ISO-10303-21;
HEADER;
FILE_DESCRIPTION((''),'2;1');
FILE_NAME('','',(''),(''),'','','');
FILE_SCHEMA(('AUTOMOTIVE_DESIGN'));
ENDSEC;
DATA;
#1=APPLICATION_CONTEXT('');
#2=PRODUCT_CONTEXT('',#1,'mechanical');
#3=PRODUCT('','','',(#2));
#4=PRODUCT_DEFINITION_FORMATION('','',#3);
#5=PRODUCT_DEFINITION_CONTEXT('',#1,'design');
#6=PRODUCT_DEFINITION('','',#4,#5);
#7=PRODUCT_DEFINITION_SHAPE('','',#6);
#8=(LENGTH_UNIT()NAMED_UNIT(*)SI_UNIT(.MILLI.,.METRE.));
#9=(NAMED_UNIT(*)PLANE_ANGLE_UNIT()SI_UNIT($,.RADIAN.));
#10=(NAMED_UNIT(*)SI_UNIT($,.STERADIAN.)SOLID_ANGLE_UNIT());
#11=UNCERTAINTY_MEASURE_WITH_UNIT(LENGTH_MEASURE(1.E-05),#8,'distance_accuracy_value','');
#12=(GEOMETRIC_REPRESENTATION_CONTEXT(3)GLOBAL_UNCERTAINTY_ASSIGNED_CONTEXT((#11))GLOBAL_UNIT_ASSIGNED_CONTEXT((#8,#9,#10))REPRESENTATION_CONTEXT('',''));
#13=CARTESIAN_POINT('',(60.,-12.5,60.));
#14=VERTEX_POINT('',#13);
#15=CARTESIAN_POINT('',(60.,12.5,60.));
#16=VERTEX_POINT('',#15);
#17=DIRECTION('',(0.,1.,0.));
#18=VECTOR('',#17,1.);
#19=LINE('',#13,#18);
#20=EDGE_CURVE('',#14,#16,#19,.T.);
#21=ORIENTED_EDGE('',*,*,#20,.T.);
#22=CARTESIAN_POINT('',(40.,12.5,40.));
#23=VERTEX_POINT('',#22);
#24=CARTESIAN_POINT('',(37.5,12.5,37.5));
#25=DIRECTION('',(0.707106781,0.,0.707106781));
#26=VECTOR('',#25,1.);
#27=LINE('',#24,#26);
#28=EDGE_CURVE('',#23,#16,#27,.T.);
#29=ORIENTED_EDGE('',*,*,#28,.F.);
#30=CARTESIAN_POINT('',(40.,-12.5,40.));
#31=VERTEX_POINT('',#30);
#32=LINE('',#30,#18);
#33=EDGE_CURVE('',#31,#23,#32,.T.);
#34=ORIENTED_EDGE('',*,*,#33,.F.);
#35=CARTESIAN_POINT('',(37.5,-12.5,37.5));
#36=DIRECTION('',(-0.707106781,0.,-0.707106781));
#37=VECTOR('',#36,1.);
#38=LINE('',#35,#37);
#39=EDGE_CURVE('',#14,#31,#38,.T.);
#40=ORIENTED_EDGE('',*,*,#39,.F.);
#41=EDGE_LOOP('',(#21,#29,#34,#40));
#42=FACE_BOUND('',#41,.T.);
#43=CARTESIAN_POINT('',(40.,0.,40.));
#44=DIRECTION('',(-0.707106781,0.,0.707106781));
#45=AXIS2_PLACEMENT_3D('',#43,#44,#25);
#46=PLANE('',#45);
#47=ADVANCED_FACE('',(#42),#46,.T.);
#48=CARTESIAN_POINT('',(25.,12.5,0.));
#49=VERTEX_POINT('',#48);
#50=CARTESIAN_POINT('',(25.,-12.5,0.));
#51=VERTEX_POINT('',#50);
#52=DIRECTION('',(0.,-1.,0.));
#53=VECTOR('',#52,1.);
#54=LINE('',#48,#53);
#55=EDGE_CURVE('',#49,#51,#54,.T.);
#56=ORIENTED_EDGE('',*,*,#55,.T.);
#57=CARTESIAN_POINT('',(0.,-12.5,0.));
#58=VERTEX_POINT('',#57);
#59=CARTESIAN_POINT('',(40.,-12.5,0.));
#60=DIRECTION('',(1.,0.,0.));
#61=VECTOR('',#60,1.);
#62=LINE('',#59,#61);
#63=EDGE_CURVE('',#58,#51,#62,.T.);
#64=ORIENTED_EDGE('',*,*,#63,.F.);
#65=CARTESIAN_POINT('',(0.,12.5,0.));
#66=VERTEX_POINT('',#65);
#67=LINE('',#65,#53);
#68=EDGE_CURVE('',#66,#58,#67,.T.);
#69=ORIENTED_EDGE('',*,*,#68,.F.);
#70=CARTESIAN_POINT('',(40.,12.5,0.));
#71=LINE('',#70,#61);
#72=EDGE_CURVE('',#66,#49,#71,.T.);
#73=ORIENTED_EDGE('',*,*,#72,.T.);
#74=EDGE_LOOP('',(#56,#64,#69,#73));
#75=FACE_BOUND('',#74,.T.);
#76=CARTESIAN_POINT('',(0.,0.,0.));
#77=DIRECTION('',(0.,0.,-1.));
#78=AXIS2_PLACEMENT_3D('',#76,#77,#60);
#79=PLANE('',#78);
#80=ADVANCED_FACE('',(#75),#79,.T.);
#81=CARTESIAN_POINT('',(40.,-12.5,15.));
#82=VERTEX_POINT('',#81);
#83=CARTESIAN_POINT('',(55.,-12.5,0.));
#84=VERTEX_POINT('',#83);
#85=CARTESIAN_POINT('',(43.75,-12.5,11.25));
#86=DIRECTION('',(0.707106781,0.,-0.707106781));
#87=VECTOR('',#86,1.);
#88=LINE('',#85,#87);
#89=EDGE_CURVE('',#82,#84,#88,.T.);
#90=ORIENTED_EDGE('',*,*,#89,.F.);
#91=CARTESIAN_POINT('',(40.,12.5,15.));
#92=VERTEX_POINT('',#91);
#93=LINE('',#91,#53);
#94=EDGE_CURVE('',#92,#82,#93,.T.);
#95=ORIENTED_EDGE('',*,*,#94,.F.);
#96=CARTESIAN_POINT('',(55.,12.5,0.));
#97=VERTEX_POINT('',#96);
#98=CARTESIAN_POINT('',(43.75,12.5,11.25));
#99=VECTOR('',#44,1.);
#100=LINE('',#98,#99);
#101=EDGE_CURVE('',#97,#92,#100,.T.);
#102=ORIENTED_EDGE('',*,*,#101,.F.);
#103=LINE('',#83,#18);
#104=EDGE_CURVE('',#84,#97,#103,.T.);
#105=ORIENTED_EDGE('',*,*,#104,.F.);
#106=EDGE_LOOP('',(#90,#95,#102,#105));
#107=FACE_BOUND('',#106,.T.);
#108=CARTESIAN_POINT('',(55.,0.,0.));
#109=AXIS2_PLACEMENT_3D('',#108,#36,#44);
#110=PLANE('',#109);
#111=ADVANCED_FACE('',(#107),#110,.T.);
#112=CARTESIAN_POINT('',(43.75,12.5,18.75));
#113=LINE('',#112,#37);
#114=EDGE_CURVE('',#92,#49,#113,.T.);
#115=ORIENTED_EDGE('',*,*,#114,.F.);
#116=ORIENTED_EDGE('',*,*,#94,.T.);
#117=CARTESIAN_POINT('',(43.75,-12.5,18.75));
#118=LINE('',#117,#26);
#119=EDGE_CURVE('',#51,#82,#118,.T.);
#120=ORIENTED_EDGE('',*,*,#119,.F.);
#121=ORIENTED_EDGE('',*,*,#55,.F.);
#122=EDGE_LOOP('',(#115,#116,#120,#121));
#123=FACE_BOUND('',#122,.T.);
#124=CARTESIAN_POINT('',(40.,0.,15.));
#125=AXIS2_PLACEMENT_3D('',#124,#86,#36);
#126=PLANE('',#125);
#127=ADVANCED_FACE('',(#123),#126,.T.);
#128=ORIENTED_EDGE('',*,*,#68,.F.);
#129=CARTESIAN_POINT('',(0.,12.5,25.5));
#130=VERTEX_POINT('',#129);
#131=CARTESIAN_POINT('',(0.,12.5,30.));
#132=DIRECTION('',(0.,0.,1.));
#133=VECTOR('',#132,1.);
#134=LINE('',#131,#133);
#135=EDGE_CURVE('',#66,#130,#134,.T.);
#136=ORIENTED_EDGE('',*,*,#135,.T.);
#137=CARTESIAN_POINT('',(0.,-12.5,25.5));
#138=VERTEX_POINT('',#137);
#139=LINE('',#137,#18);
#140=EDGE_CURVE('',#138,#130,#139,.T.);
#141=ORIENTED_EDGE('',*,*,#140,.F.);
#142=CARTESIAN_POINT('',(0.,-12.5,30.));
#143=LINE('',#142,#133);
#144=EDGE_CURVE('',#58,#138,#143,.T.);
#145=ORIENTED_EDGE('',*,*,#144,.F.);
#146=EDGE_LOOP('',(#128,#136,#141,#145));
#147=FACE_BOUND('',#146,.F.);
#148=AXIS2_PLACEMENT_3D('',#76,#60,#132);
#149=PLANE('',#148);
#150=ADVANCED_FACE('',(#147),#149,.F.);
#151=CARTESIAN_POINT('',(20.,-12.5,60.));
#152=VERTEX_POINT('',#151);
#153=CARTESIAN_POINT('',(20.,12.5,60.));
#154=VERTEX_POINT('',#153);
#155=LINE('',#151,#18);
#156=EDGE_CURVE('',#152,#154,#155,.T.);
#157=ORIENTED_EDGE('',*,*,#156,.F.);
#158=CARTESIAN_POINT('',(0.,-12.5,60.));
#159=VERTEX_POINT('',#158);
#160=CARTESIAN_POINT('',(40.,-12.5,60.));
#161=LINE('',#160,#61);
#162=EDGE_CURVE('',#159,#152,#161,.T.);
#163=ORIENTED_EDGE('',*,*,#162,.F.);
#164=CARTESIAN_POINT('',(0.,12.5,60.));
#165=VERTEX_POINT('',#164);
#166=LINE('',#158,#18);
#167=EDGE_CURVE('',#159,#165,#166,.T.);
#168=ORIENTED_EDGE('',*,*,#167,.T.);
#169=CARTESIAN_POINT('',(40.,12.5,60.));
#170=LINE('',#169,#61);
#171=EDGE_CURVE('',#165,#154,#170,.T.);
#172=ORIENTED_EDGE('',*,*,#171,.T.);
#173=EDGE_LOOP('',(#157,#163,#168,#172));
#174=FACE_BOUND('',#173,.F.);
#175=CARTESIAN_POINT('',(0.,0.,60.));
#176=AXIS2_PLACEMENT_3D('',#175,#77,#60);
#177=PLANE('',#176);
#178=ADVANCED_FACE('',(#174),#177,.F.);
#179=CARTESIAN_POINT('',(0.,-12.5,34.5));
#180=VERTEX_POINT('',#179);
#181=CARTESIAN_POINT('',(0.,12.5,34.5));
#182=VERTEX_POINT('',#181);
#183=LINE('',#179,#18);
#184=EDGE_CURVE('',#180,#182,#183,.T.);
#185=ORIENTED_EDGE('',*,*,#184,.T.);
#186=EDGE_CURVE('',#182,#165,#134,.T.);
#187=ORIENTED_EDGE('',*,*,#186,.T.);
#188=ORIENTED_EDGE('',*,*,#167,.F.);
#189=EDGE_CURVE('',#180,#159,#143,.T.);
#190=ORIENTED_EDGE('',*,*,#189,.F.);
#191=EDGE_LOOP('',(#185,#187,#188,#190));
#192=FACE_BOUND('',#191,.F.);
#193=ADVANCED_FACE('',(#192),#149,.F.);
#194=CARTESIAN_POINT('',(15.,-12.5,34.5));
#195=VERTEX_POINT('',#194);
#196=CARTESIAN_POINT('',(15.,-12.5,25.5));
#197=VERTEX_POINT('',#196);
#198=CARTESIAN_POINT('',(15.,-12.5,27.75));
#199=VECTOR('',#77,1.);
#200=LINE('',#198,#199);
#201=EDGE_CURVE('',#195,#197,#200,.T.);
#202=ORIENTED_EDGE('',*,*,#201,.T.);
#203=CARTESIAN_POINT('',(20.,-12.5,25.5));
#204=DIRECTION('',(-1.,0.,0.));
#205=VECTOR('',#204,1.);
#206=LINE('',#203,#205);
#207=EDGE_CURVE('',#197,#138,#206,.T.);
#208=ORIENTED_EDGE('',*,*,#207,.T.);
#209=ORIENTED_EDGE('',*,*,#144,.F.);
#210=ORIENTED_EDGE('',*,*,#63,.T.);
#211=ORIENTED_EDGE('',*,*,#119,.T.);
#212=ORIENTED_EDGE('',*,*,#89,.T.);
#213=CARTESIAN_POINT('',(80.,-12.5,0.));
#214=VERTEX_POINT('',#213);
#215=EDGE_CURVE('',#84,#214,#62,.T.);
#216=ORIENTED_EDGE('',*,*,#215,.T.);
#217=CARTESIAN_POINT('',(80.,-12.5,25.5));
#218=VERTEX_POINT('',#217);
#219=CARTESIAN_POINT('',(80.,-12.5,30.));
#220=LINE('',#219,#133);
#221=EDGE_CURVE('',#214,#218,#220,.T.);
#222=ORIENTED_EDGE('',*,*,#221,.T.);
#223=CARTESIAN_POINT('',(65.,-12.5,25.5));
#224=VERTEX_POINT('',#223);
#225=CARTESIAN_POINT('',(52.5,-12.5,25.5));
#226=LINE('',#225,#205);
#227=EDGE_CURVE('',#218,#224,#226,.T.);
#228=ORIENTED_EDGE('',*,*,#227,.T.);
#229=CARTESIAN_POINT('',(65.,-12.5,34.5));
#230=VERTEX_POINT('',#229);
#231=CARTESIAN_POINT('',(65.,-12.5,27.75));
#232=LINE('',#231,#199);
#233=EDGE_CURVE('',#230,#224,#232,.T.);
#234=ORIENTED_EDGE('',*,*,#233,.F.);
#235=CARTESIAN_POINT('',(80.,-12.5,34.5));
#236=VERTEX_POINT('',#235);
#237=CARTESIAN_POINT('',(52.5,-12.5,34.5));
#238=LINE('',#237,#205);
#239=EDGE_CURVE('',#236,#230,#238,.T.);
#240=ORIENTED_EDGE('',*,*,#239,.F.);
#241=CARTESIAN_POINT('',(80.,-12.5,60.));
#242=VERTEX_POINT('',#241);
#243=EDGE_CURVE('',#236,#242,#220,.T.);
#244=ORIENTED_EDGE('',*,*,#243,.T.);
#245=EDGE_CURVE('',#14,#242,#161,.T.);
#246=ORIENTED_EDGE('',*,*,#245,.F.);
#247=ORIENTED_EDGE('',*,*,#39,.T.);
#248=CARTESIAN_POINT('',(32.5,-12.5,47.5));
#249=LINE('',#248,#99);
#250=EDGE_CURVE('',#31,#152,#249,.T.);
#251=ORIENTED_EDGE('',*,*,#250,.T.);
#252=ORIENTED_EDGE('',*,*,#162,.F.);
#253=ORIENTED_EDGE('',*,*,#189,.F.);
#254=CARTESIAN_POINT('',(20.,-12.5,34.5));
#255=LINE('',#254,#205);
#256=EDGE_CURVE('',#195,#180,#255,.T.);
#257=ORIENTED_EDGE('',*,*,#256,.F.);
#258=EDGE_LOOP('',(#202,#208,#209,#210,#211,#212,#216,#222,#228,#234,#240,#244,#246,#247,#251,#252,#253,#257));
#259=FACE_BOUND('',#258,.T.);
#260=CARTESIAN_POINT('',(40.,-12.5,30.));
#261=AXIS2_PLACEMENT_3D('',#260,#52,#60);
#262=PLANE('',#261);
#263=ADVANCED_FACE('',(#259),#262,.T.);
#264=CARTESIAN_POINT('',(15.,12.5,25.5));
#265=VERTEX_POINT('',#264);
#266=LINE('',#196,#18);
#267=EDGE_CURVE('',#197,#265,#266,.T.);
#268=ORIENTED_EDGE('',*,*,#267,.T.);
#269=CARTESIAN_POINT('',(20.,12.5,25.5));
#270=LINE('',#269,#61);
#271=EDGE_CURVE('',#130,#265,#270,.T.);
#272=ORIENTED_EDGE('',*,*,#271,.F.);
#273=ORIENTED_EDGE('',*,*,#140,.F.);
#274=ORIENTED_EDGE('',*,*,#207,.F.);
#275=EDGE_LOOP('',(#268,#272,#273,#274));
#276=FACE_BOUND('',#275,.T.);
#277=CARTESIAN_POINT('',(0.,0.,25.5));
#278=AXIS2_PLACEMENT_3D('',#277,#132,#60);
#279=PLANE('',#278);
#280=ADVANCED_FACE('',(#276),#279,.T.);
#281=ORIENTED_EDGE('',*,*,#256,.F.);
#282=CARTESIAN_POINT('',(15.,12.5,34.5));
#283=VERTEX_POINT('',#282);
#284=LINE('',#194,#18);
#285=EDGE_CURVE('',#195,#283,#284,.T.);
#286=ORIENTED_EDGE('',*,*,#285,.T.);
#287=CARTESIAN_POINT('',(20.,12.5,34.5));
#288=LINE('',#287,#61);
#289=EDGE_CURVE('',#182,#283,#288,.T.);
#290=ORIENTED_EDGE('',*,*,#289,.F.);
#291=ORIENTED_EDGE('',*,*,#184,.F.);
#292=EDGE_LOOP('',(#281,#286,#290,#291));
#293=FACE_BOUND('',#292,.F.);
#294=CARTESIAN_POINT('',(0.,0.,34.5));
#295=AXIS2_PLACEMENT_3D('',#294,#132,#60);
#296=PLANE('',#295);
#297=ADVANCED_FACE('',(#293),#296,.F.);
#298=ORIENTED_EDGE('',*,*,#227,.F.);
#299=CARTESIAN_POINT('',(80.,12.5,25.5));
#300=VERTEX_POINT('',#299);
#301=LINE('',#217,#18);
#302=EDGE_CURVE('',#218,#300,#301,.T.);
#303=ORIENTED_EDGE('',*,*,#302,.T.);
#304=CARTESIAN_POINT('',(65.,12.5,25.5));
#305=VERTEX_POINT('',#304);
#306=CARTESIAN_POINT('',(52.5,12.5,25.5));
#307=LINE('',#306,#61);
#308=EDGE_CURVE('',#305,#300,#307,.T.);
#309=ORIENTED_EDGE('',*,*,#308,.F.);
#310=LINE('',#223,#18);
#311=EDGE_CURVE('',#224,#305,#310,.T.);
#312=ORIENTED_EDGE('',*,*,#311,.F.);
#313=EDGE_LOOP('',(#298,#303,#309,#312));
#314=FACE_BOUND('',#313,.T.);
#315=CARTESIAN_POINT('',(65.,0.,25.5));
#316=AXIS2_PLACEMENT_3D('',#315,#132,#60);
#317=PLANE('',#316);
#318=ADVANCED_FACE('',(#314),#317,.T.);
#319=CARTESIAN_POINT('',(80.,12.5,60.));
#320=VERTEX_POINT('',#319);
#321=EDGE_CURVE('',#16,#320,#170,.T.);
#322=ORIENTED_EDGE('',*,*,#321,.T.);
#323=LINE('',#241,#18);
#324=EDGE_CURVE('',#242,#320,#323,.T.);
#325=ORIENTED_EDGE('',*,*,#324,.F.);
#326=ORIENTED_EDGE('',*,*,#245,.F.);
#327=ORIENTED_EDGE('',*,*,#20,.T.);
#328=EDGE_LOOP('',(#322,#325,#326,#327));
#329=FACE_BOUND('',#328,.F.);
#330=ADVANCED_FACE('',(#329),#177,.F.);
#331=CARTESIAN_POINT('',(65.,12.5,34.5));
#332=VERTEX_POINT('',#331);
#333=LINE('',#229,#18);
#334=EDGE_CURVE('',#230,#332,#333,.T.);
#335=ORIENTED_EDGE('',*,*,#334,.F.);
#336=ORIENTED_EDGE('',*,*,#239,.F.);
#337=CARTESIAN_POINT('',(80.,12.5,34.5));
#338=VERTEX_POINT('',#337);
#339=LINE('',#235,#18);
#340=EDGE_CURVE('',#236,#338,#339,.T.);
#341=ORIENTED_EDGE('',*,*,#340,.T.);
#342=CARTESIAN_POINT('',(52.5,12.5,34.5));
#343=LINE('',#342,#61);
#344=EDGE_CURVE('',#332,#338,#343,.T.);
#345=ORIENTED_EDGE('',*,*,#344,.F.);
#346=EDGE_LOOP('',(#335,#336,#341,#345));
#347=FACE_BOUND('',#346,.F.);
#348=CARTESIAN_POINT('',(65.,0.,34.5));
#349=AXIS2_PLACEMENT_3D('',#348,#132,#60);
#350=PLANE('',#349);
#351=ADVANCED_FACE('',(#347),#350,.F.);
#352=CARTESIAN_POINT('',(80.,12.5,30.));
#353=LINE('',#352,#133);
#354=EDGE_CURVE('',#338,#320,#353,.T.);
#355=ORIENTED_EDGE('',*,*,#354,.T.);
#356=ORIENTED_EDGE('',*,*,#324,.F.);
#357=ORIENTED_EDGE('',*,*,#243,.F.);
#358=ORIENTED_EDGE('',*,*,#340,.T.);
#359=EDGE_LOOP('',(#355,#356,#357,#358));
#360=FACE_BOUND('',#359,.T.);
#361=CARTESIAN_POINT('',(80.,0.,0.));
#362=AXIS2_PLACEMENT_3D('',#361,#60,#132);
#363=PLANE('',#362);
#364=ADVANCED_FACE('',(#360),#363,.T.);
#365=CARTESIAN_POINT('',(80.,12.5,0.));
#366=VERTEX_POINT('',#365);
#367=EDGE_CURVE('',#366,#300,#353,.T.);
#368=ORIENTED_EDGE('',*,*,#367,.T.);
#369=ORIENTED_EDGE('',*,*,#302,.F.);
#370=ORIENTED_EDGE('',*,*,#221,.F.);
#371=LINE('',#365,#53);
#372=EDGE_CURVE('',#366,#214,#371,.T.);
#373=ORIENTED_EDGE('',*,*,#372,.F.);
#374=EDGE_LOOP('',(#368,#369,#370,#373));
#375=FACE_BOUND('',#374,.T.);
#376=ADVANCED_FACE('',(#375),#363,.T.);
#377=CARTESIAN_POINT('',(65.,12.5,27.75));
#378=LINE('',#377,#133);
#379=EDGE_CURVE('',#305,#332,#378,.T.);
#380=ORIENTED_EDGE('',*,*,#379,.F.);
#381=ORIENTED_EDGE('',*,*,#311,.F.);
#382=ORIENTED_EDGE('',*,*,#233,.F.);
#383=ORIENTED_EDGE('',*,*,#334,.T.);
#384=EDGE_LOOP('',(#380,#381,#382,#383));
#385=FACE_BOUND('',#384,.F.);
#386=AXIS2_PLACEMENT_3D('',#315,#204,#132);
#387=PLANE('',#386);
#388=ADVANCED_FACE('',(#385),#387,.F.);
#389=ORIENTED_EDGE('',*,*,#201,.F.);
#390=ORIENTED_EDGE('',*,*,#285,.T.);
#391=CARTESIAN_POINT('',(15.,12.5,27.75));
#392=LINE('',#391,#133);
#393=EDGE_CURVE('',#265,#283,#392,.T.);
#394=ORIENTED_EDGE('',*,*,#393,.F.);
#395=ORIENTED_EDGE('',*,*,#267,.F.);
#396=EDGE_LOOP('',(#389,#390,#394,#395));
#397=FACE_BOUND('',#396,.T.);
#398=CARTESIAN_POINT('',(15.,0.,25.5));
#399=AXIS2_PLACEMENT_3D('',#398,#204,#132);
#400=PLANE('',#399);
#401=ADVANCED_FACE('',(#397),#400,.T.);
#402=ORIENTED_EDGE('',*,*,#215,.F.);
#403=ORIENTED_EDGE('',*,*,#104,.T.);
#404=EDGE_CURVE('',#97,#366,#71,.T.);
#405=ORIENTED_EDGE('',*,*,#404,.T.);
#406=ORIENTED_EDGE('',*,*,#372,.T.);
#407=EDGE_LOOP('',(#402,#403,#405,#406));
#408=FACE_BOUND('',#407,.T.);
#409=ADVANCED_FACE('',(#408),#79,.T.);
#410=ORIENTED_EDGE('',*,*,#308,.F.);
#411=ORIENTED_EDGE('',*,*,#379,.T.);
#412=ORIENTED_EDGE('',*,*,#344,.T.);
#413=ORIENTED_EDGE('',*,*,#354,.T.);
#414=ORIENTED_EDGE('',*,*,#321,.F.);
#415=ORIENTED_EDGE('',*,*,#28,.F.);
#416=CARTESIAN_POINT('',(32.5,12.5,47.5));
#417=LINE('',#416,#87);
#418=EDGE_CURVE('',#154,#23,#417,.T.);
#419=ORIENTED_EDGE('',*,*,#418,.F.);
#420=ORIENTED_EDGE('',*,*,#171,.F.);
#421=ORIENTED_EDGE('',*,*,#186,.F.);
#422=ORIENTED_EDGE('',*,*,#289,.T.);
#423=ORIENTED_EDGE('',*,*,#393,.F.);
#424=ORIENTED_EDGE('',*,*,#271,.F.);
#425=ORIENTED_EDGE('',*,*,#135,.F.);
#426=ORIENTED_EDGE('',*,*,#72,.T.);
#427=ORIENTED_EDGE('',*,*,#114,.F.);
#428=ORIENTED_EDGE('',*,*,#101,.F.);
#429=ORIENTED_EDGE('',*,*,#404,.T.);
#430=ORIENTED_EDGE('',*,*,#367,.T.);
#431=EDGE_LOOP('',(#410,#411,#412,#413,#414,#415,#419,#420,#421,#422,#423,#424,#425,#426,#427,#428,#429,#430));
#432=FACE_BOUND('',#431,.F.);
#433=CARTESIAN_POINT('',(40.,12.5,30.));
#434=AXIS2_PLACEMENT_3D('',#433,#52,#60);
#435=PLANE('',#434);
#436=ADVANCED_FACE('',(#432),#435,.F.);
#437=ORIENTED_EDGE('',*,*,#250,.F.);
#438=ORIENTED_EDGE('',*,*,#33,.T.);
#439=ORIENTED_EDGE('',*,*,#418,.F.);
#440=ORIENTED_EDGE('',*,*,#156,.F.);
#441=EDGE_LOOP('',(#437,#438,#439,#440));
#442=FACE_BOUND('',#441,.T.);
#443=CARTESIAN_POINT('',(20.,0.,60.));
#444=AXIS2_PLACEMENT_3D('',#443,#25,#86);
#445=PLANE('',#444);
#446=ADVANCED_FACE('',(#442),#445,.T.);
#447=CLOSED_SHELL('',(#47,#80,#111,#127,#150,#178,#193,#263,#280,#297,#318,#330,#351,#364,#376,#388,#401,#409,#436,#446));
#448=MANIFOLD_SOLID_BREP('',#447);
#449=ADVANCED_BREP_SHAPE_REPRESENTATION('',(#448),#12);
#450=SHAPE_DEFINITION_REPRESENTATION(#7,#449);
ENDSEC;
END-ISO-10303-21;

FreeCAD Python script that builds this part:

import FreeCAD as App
import Part
import Sketcher

V = App.Vector

doc = App.newDocument("Part")
params = doc.addObject("Spreadsheet::Sheet", "Params")
for row, (alias, value) in enumerate([
    ("sketch1_width", "80 mm"),
    ("sketch1_height", "60 mm"),
    ("pad1_length", "25 mm"),
    ("sketch2_width", "15 mm"),
    ("sketch2_width2", "40 mm"),
    ("sketch2_width3", "30 mm"),
    ("sketch2_height", "9 mm"),
], start=1):
    params.set(f"A{row}", alias)
    params.set(f"B{row}", "=" + value)
    params.setAlias(f"B{row}", alias)

body = doc.addObject("PartDesign::Body", "Body")

# Sketch on XZ plane
sketch1 = body.newObject("Sketcher::SketchObject", "Sketch")
sketch1.AttachmentSupport = (doc.getObject("XZ_Plane"), [""])
sketch1.MapMode = "FlatFace"
sketch1.addGeometry([
    Part.LineSegment(V(0, 60, 0), V(0, 0, 0)),
    Part.LineSegment(V(0, 0, 0), V(80, 0, 0)),
    Part.LineSegment(V(80, 0, 0), V(80, 60, 0)),
    Part.LineSegment(V(80, 60, 0), V(0, 60, 0)),
], False)
sketch1.addConstraint([
    Sketcher.Constraint("Coincident", 0, 2, 1, 1),
    Sketcher.Constraint("Coincident", 1, 2, 2, 1),
    Sketcher.Constraint("Coincident", 2, 2, 3, 1),
    Sketcher.Constraint("Coincident", 3, 2, 0, 1),
    Sketcher.Constraint("Vertical", 0),
    Sketcher.Constraint("Horizontal", 1),
    Sketcher.Constraint("Vertical", 2),
    Sketcher.Constraint("Horizontal", 3),
    Sketcher.Constraint("Coincident", 0, 2, -1, 1),
    Sketcher.Constraint("DistanceX", 1, 1, 1, 2, 80.0),
    Sketcher.Constraint("DistanceY", 0, 2, 0, 1, 60.0),
])
sketch1.setExpression("Constraints[9]", "Params.sketch1_width")
sketch1.setExpression("Constraints[10]", "Params.sketch1_height")
pad1 = body.newObject("PartDesign::Pad", "Pad")
pad1.Profile = sketch1
pad1.setExpression("Length", "Params.pad1_length")
pad1.Midplane = True

# Sketch on XZ plane
sketch2 = body.newObject("Sketcher::SketchObject", "Sketch001")
sketch2.AttachmentSupport = (doc.getObject("XZ_Plane"), [""])
sketch2.MapMode = "FlatFace"
sketch2.addGeometry([
    Part.LineSegment(V(0, 34, 0), V(0, 26, 0)),  # 0
    Part.LineSegment(V(0, 26, 0), V(15, 26, 0)),  # 1
    Part.LineSegment(V(15, 26, 0), V(15, 34, 0)),  # 2
    Part.LineSegment(V(15, 34, 0), V(0, 34, 0)),  # 3
    Part.LineSegment(V(65, 34, 0), V(65, 26, 0)),  # 4
    Part.LineSegment(V(65, 26, 0), V(80, 26, 0)),  # 5
    Part.LineSegment(V(80, 26, 0), V(80, 34, 0)),  # 6
    Part.LineSegment(V(80, 34, 0), V(65, 34, 0)),  # 7
    Part.LineSegment(V(40, 40, 0), V(60, 60, 0)),  # 8
    Part.LineSegment(V(60, 60, 0), V(20, 60, 0)),  # 9
    Part.LineSegment(V(20, 60, 0), V(40, 40, 0)),  # 10
    Part.LineSegment(V(40, 15, 0), V(25, 0, 0)),  # 11
    Part.LineSegment(V(25, 0, 0), V(55, 0, 0)),  # 12
    Part.LineSegment(V(55, 0, 0), V(40, 15, 0)),  # 13
], False)
sketch2.addConstraint([
    Sketcher.Constraint("Coincident", 0, 2, 1, 1),
    Sketcher.Constraint("Coincident", 1, 2, 2, 1),
    Sketcher.Constraint("Coincident", 2, 2, 3, 1),
    Sketcher.Constraint("Coincident", 3, 2, 0, 1),
    Sketcher.Constraint("Coincident", 4, 2, 5, 1),
    Sketcher.Constraint("Coincident", 5, 2, 6, 1),
    Sketcher.Constraint("Coincident", 6, 2, 7, 1),
    Sketcher.Constraint("Coincident", 7, 2, 4, 1),
    Sketcher.Constraint("Coincident", 8, 2, 9, 1),
    Sketcher.Constraint("Coincident", 9, 2, 10, 1),
    Sketcher.Constraint("Coincident", 10, 2, 8, 1),
    Sketcher.Constraint("Coincident", 11, 2, 12, 1),
    Sketcher.Constraint("Coincident", 12, 2, 13, 1),
    Sketcher.Constraint("Coincident", 13, 2, 11, 1),
    Sketcher.Constraint("Vertical", 0),
    Sketcher.Constraint("Horizontal", 1),
    Sketcher.Constraint("Vertical", 2),
    Sketcher.Constraint("Horizontal", 3),
    Sketcher.Constraint("Vertical", 4),
    Sketcher.Constraint("Horizontal", 5),
    Sketcher.Constraint("Vertical", 6),
    Sketcher.Constraint("Horizontal", 7),
    Sketcher.Constraint("Horizontal", 9),
    Sketcher.Constraint("Horizontal", 12),
    Sketcher.Constraint("PointOnObject", 0, 2, -2),
    Sketcher.Constraint("PointOnObject", 11, 2, -1),
    Sketcher.Constraint("Perpendicular", 8, 10),
    Sketcher.Constraint("Perpendicular", 10, 11),
    Sketcher.Constraint("Perpendicular", 11, 13),
    Sketcher.Constraint("Horizontal", 1, 2, 4, 2),
    Sketcher.Constraint("Horizontal", 3, 2, 6, 2),
    Sketcher.Constraint("Vertical", 10, 2, 13, 2),
    Sketcher.Constraint("Equal", 3, 5),
    Sketcher.Constraint("Equal", 8, 10),
    Sketcher.Constraint("DistanceX", 1, 1, 1, 2, 15.0),
    Sketcher.Constraint("DistanceX", 9, 2, 9, 1, 40.0),
    Sketcher.Constraint("DistanceX", 12, 1, 12, 2, 30.0),
    Sketcher.Constraint("DistanceY", 0, 2, 0, 1, 9.0),
    Sketcher.Constraint("DistanceX", -1, 1, 4, 2, 65.0),
    Sketcher.Constraint("DistanceX", -1, 1, 8, 2, 60.0),
    Sketcher.Constraint("DistanceY", -1, 1, 8, 2, 60.0),
    Sketcher.Constraint("DistanceY", -1, 1, 0, 2, 25.5),
])
sketch2.setExpression("Constraints[34]", "Params.sketch2_width")
sketch2.setExpression("Constraints[35]", "Params.sketch2_width2")
sketch2.setExpression("Constraints[36]", "Params.sketch2_width3")
sketch2.setExpression("Constraints[37]", "Params.sketch2_height")
pocket1 = body.newObject("PartDesign::Pocket", "Pocket")
pocket1.Profile = sketch2
pocket1.Type = "ThroughAll"
pocket1.Midplane = True

doc.recompute()
